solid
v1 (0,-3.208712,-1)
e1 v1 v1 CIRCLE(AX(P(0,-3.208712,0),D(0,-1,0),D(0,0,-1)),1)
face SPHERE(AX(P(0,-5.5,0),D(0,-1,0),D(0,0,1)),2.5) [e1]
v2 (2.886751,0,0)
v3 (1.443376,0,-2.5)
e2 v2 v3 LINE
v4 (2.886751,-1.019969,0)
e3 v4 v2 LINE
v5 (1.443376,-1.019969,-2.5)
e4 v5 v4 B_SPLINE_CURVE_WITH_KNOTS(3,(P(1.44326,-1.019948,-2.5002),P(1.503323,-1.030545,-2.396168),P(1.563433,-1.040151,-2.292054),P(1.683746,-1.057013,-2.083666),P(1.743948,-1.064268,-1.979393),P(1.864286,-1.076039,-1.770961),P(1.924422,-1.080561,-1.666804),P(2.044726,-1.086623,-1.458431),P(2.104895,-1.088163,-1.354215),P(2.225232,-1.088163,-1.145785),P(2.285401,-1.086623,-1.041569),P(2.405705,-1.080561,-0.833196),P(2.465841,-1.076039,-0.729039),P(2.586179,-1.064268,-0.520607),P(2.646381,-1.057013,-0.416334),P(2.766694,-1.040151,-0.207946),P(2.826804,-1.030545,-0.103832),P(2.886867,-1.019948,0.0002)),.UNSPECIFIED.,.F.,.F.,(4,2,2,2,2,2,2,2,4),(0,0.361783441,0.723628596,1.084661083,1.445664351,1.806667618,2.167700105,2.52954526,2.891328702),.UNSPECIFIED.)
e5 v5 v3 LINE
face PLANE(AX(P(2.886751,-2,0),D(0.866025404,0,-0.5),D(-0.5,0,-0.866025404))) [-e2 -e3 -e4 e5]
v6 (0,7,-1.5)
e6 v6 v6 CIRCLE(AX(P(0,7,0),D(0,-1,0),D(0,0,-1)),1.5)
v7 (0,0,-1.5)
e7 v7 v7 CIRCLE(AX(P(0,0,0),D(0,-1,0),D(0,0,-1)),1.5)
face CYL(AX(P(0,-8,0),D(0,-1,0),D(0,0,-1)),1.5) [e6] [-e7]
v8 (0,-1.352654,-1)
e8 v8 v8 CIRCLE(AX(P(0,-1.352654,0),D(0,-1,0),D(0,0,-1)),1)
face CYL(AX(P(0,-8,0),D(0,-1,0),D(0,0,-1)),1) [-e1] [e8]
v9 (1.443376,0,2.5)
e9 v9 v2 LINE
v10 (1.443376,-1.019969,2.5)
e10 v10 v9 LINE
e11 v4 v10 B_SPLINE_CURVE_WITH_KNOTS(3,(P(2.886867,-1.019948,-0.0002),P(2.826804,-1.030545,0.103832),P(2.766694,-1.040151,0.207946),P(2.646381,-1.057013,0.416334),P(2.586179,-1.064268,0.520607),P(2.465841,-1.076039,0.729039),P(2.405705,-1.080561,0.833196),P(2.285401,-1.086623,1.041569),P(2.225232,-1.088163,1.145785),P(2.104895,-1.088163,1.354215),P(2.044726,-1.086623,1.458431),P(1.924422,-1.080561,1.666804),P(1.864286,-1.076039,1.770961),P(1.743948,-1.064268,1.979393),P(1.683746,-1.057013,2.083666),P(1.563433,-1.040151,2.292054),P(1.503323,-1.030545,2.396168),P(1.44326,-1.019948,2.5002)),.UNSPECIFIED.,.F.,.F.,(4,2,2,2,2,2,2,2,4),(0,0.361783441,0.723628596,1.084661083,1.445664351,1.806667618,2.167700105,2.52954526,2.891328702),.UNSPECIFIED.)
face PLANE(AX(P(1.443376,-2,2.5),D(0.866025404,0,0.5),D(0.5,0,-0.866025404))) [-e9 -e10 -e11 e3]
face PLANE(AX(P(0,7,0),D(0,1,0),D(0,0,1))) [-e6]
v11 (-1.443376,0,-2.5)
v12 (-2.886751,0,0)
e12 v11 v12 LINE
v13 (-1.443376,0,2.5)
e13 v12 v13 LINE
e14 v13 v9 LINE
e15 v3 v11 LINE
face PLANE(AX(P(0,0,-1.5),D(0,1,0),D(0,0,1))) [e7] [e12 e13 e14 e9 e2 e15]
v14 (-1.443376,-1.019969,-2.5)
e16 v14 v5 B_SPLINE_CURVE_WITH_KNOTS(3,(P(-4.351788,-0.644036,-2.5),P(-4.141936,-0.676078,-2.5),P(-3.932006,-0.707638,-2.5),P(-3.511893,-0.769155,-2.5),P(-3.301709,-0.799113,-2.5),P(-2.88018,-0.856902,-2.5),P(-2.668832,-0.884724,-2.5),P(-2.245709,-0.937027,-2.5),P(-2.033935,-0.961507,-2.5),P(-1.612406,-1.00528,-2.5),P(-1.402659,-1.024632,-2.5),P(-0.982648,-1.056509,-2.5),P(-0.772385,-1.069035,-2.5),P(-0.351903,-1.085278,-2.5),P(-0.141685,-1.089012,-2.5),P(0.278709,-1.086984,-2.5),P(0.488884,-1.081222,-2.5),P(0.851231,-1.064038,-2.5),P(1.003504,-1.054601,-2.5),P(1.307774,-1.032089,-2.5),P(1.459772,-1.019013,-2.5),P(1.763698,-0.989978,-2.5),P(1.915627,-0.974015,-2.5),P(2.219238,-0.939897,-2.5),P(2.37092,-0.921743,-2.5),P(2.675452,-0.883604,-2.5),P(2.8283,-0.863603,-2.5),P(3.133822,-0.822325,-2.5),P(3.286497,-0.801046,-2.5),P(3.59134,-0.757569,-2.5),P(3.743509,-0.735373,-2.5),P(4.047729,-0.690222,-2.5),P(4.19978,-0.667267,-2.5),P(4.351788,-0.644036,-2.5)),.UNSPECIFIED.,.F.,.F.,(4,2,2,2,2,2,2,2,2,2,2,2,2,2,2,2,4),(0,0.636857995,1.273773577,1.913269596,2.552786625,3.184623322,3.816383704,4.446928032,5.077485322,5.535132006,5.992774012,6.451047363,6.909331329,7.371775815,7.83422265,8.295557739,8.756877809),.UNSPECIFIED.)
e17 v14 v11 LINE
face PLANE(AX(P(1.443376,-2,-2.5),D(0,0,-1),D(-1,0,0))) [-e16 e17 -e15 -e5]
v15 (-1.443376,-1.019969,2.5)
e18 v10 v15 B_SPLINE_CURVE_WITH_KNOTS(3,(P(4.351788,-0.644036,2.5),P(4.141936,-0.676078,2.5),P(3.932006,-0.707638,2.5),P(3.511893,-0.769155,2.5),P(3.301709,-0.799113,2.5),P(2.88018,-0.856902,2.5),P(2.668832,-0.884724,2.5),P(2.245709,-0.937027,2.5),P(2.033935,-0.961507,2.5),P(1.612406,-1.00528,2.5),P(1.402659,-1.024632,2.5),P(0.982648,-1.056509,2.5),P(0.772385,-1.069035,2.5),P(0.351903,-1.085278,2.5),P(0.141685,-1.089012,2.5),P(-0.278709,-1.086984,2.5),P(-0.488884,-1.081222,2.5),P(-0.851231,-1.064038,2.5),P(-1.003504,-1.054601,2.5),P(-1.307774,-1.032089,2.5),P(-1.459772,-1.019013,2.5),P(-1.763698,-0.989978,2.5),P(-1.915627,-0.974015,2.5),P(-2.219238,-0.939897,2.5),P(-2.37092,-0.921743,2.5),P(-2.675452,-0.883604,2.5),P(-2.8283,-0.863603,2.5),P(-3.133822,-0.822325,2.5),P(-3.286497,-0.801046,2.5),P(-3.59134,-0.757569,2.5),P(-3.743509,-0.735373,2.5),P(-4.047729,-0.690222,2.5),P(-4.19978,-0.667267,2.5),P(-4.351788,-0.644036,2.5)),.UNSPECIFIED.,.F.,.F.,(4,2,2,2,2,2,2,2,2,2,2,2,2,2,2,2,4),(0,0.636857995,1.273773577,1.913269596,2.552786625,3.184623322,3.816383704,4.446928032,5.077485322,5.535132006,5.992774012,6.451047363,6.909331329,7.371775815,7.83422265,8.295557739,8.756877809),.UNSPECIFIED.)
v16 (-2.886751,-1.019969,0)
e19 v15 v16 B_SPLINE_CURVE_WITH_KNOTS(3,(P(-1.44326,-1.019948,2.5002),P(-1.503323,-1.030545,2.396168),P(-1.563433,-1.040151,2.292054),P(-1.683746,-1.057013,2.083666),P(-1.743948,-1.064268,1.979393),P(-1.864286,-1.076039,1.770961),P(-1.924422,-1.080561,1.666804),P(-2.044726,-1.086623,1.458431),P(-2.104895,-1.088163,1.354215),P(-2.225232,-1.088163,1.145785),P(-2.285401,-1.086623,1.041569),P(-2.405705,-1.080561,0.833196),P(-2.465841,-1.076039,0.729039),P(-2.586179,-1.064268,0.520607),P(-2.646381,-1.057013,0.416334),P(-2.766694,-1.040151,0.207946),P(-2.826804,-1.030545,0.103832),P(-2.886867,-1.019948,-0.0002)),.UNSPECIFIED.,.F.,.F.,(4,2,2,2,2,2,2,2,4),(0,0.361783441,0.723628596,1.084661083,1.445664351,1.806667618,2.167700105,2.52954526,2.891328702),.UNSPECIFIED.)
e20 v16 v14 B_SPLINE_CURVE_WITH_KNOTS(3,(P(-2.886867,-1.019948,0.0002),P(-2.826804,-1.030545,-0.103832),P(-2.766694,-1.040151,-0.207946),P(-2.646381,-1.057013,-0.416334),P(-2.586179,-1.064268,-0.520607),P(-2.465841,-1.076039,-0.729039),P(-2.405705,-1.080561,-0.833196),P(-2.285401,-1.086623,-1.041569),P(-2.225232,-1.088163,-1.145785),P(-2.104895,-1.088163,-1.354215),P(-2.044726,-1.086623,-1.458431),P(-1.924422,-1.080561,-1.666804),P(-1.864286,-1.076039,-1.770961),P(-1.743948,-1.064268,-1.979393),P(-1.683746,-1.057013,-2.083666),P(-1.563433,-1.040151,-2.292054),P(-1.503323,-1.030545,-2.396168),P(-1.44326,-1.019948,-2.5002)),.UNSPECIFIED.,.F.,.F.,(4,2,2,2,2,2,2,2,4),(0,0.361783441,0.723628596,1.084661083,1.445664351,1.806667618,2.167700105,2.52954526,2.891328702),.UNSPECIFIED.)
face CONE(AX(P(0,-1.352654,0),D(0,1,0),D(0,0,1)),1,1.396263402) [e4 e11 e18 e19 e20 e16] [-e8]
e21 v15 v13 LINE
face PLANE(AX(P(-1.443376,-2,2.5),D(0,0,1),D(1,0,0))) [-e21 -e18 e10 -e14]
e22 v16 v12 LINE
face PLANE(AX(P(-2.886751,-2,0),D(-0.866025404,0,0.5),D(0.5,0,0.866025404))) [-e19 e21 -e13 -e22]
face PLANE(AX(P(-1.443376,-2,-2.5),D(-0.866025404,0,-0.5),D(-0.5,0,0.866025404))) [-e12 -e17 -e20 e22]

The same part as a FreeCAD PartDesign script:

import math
import FreeCAD as App
import Part
import Sketcher

V = App.Vector
Q = App.Units.Quantity

doc = App.newDocument("Part")
body = doc.addObject("PartDesign::Body", "Body")

sketch1 = body.newObject("Sketcher::SketchObject", "Sketch")
sketch1.AttachmentSupport = (doc.getObject("YZ_Plane"), [""])
sketch1.MapMode = "FlatFace"
sketch1.addGeometry(Part.LineSegment(V(7, -1.5, 0), V(7, 0, 0)), False)
sketch1.addGeometry(Part.LineSegment(V(7, 0, 0), V(-8, 0, 0)), False)
sketch1.addGeometry(Part.ArcOfCircle(Part.Circle(V(-5.5, 0, 0), V(0, 0, 1), 2.5), math.radians(180), math.radians(336.421822)), False)
sketch1.addGeometry(Part.LineSegment(V(-3.208712, -1, 0), V(-1.352654, -1, 0)), False)
sketch1.addGeometry(Part.LineSegment(V(-1.352654, -1, 0), V(-1, -3, 0)), False)
sketch1.addGeometry(Part.LineSegment(V(-1, -3, 0), V(0, -3, 0)), False)
sketch1.addGeometry(Part.LineSegment(V(0, -3, 0), V(0, -1.5, 0)), False)
sketch1.addGeometry(Part.LineSegment(V(0, -1.5, 0), V(7, -1.5, 0)), False)
sketch1.addConstraint(Sketcher.Constraint("Coincident", 0, 2, 1, 1))
sketch1.addConstraint(Sketcher.Constraint("Coincident", 1, 2, 2, 1))
sketch1.addConstraint(Sketcher.Constraint("Coincident", 2, 2, 3, 1))
sketch1.addConstraint(Sketcher.Constraint("Coincident", 3, 2, 4, 1))
sketch1.addConstraint(Sketcher.Constraint("Coincident", 4, 2, 5, 1))
sketch1.addConstraint(Sketcher.Constraint("Coincident", 5, 2, 6, 1))
sketch1.addConstraint(Sketcher.Constraint("Coincident", 6, 2, 7, 1))
sketch1.addConstraint(Sketcher.Constraint("Coincident", 7, 2, 0, 1))
sketch1.addConstraint(Sketcher.Constraint("Vertical", 0))
sketch1.addConstraint(Sketcher.Constraint("Horizontal", 1))
sketch1.addConstraint(Sketcher.Constraint("Horizontal", 3))
sketch1.addConstraint(Sketcher.Constraint("Horizontal", 5))
sketch1.addConstraint(Sketcher.Constraint("Vertical", 6))
sketch1.addConstraint(Sketcher.Constraint("Horizontal", 7))
sketch1.addConstraint(Sketcher.Constraint("PointOnObject", 2, 3, -1))
sketch1.addConstraint(Sketcher.Constraint("PointOnObject", 0, 2, -1))
sketch1.addConstraint(Sketcher.Constraint("PointOnObject", 5, 2, -2))
sketch1.addConstraint(Sketcher.Constraint("Equal", 0, 6))
sketch1.addConstraint(Sketcher.Constraint("Radius", 2, Q("2.5 mm")))
sketch1.addConstraint(Sketcher.Constraint("DistanceX", 1, 2, 1, 1, Q("15 mm")))
sketch1.addConstraint(Sketcher.Constraint("DistanceX", 5, 1, 5, 2, Q("1 mm")))
sketch1.addConstraint(Sketcher.Constraint("DistanceX", 7, 1, 7, 2, Q("7 mm")))
sketch1.addConstraint(Sketcher.Constraint("Angle", 4, Q("-80 deg")))
sketch1.addConstraint(Sketcher.Constraint("DistanceY", 0, 1, 0, 2, Q("1.5 mm")))
sketch1.addConstraint(Sketcher.Constraint("DistanceY", 2, 2, -1, 1, Q("1 mm")))
revolution = body.newObject("PartDesign::Revolution", "Revolution")
revolution.Profile = sketch1
revolution.ReferenceAxis = (sketch1, ["H_Axis"])
revolution.Angle = 360

sketch2 = body.newObject("Sketcher::SketchObject", "Sketch001")
sketch2.AttachmentSupport = (doc.getObject("XZ_Plane"), [""])
sketch2.MapMode = "FlatFace"
sketch2.addGeometry(Part.LineSegment(V(-5.723, -5.723, 0), V(-5.723, 5.723, 0)), False)
sketch2.addGeometry(Part.LineSegment(V(-5.723, 5.723, 0), V(5.723, 5.723, 0)), False)
sketch2.addGeometry(Part.LineSegment(V(5.723, 5.723, 0), V(5.723, -5.723, 0)), False)
sketch2.addGeometry(Part.LineSegment(V(5.723, -5.723, 0), V(-5.723, -5.723, 0)), False)
sketch2.addGeometry(Part.LineSegment(V(-1.443376, -2.5, 0), V(1.443376, -2.5, 0)), False)
sketch2.addGeometry(Part.LineSegment(V(1.443376, -2.5, 0), V(2.886751, 0, 0)), False)
sketch2.addGeometry(Part.LineSegment(V(2.886751, 0, 0), V(1.443376, 2.5, 0)), False)
sketch2.addGeometry(Part.LineSegment(V(1.443376, 2.5, 0), V(-1.443376, 2.5, 0)), False)
sketch2.addGeometry(Part.LineSegment(V(-1.443376, 2.5, 0), V(-2.886751, 0, 0)), False)
sketch2.addGeometry(Part.LineSegment(V(-2.886751, 0, 0), V(-1.443376, -2.5, 0)), False)
sketch2.addConstraint(Sketcher.Constraint("Coincident", 0, 2, 1, 1))
sketch2.addConstraint(Sketcher.Constraint("Coincident", 1, 2, 2, 1))
sketch2.addConstraint(Sketcher.Constraint("Coincident", 2, 2, 3, 1))
sketch2.addConstraint(Sketcher.Constraint("Coincident", 3, 2, 0, 1))
sketch2.addConstraint(Sketcher.Constraint("Coincident", 4, 2, 5, 1))
sketch2.addConstraint(Sketcher.Constraint("Coincident", 5, 2, 6, 1))
sketch2.addConstraint(Sketcher.Constraint("Coincident", 6, 2, 7, 1))
sketch2.addConstraint(Sketcher.Constraint("Coincident", 7, 2, 8, 1))
sketch2.addConstraint(Sketcher.Constraint("Coincident", 8, 2, 9, 1))
sketch2.addConstraint(Sketcher.Constraint("Coincident", 9, 2, 4, 1))
sketch2.addConstraint(Sketcher.Constraint("Vertical", 0))
sketch2.addConstraint(Sketcher.Constraint("Horizontal", 1))
sketch2.addConstraint(Sketcher.Constraint("Vertical", 2))
sketch2.addConstraint(Sketcher.Constraint("Horizontal", 3))
sketch2.addConstraint(Sketcher.Constraint("Horizontal", 4))
sketch2.addConstraint(Sketcher.Constraint("Horizontal", 7))
sketch2.addConstraint(Sketcher.Constraint("Symmetric", 0, 2, 2, 2, -1, 1))
sketch2.addConstraint(Sketcher.Constraint("Symmetric", 4, 2, 7, 2, -1, 1))
sketch2.addConstraint(Sketcher.Constraint("Symmetric", 5, 2, 8, 2, -1, 1))
sketch2.addConstraint(Sketcher.Constraint("PointOnObject", 5, 2, -1))
sketch2.addConstraint(Sketcher.Constraint("Parallel", 6, 9))
sketch2.addConstraint(Sketcher.Constraint("Vertical", 4, 2, 6, 2))
sketch2.addConstraint(Sketcher.Constraint("Equal", 3, 0))
sketch2.addConstraint(Sketcher.Constraint("Angle", 5, Q("60 deg")))
sketch2.addConstraint(Sketcher.Constraint("DistanceY", 4, 2, 6, 2, Q("5 mm")))
sketch2.addConstraint(Sketcher.Constraint("DistanceX", 1, 1, 1, 2, Q("11.446 mm")))
sketch2.addConstraint(Sketcher.Constraint("DistanceX", 4, 1, 4, 2, Q("2.886751 mm")))
pocket1 = body.newObject("PartDesign::Pocket", "Pocket")
pocket1.Profile = sketch2
pocket1.Length = 2
pocket1.Reversed = True

doc.recompute()
